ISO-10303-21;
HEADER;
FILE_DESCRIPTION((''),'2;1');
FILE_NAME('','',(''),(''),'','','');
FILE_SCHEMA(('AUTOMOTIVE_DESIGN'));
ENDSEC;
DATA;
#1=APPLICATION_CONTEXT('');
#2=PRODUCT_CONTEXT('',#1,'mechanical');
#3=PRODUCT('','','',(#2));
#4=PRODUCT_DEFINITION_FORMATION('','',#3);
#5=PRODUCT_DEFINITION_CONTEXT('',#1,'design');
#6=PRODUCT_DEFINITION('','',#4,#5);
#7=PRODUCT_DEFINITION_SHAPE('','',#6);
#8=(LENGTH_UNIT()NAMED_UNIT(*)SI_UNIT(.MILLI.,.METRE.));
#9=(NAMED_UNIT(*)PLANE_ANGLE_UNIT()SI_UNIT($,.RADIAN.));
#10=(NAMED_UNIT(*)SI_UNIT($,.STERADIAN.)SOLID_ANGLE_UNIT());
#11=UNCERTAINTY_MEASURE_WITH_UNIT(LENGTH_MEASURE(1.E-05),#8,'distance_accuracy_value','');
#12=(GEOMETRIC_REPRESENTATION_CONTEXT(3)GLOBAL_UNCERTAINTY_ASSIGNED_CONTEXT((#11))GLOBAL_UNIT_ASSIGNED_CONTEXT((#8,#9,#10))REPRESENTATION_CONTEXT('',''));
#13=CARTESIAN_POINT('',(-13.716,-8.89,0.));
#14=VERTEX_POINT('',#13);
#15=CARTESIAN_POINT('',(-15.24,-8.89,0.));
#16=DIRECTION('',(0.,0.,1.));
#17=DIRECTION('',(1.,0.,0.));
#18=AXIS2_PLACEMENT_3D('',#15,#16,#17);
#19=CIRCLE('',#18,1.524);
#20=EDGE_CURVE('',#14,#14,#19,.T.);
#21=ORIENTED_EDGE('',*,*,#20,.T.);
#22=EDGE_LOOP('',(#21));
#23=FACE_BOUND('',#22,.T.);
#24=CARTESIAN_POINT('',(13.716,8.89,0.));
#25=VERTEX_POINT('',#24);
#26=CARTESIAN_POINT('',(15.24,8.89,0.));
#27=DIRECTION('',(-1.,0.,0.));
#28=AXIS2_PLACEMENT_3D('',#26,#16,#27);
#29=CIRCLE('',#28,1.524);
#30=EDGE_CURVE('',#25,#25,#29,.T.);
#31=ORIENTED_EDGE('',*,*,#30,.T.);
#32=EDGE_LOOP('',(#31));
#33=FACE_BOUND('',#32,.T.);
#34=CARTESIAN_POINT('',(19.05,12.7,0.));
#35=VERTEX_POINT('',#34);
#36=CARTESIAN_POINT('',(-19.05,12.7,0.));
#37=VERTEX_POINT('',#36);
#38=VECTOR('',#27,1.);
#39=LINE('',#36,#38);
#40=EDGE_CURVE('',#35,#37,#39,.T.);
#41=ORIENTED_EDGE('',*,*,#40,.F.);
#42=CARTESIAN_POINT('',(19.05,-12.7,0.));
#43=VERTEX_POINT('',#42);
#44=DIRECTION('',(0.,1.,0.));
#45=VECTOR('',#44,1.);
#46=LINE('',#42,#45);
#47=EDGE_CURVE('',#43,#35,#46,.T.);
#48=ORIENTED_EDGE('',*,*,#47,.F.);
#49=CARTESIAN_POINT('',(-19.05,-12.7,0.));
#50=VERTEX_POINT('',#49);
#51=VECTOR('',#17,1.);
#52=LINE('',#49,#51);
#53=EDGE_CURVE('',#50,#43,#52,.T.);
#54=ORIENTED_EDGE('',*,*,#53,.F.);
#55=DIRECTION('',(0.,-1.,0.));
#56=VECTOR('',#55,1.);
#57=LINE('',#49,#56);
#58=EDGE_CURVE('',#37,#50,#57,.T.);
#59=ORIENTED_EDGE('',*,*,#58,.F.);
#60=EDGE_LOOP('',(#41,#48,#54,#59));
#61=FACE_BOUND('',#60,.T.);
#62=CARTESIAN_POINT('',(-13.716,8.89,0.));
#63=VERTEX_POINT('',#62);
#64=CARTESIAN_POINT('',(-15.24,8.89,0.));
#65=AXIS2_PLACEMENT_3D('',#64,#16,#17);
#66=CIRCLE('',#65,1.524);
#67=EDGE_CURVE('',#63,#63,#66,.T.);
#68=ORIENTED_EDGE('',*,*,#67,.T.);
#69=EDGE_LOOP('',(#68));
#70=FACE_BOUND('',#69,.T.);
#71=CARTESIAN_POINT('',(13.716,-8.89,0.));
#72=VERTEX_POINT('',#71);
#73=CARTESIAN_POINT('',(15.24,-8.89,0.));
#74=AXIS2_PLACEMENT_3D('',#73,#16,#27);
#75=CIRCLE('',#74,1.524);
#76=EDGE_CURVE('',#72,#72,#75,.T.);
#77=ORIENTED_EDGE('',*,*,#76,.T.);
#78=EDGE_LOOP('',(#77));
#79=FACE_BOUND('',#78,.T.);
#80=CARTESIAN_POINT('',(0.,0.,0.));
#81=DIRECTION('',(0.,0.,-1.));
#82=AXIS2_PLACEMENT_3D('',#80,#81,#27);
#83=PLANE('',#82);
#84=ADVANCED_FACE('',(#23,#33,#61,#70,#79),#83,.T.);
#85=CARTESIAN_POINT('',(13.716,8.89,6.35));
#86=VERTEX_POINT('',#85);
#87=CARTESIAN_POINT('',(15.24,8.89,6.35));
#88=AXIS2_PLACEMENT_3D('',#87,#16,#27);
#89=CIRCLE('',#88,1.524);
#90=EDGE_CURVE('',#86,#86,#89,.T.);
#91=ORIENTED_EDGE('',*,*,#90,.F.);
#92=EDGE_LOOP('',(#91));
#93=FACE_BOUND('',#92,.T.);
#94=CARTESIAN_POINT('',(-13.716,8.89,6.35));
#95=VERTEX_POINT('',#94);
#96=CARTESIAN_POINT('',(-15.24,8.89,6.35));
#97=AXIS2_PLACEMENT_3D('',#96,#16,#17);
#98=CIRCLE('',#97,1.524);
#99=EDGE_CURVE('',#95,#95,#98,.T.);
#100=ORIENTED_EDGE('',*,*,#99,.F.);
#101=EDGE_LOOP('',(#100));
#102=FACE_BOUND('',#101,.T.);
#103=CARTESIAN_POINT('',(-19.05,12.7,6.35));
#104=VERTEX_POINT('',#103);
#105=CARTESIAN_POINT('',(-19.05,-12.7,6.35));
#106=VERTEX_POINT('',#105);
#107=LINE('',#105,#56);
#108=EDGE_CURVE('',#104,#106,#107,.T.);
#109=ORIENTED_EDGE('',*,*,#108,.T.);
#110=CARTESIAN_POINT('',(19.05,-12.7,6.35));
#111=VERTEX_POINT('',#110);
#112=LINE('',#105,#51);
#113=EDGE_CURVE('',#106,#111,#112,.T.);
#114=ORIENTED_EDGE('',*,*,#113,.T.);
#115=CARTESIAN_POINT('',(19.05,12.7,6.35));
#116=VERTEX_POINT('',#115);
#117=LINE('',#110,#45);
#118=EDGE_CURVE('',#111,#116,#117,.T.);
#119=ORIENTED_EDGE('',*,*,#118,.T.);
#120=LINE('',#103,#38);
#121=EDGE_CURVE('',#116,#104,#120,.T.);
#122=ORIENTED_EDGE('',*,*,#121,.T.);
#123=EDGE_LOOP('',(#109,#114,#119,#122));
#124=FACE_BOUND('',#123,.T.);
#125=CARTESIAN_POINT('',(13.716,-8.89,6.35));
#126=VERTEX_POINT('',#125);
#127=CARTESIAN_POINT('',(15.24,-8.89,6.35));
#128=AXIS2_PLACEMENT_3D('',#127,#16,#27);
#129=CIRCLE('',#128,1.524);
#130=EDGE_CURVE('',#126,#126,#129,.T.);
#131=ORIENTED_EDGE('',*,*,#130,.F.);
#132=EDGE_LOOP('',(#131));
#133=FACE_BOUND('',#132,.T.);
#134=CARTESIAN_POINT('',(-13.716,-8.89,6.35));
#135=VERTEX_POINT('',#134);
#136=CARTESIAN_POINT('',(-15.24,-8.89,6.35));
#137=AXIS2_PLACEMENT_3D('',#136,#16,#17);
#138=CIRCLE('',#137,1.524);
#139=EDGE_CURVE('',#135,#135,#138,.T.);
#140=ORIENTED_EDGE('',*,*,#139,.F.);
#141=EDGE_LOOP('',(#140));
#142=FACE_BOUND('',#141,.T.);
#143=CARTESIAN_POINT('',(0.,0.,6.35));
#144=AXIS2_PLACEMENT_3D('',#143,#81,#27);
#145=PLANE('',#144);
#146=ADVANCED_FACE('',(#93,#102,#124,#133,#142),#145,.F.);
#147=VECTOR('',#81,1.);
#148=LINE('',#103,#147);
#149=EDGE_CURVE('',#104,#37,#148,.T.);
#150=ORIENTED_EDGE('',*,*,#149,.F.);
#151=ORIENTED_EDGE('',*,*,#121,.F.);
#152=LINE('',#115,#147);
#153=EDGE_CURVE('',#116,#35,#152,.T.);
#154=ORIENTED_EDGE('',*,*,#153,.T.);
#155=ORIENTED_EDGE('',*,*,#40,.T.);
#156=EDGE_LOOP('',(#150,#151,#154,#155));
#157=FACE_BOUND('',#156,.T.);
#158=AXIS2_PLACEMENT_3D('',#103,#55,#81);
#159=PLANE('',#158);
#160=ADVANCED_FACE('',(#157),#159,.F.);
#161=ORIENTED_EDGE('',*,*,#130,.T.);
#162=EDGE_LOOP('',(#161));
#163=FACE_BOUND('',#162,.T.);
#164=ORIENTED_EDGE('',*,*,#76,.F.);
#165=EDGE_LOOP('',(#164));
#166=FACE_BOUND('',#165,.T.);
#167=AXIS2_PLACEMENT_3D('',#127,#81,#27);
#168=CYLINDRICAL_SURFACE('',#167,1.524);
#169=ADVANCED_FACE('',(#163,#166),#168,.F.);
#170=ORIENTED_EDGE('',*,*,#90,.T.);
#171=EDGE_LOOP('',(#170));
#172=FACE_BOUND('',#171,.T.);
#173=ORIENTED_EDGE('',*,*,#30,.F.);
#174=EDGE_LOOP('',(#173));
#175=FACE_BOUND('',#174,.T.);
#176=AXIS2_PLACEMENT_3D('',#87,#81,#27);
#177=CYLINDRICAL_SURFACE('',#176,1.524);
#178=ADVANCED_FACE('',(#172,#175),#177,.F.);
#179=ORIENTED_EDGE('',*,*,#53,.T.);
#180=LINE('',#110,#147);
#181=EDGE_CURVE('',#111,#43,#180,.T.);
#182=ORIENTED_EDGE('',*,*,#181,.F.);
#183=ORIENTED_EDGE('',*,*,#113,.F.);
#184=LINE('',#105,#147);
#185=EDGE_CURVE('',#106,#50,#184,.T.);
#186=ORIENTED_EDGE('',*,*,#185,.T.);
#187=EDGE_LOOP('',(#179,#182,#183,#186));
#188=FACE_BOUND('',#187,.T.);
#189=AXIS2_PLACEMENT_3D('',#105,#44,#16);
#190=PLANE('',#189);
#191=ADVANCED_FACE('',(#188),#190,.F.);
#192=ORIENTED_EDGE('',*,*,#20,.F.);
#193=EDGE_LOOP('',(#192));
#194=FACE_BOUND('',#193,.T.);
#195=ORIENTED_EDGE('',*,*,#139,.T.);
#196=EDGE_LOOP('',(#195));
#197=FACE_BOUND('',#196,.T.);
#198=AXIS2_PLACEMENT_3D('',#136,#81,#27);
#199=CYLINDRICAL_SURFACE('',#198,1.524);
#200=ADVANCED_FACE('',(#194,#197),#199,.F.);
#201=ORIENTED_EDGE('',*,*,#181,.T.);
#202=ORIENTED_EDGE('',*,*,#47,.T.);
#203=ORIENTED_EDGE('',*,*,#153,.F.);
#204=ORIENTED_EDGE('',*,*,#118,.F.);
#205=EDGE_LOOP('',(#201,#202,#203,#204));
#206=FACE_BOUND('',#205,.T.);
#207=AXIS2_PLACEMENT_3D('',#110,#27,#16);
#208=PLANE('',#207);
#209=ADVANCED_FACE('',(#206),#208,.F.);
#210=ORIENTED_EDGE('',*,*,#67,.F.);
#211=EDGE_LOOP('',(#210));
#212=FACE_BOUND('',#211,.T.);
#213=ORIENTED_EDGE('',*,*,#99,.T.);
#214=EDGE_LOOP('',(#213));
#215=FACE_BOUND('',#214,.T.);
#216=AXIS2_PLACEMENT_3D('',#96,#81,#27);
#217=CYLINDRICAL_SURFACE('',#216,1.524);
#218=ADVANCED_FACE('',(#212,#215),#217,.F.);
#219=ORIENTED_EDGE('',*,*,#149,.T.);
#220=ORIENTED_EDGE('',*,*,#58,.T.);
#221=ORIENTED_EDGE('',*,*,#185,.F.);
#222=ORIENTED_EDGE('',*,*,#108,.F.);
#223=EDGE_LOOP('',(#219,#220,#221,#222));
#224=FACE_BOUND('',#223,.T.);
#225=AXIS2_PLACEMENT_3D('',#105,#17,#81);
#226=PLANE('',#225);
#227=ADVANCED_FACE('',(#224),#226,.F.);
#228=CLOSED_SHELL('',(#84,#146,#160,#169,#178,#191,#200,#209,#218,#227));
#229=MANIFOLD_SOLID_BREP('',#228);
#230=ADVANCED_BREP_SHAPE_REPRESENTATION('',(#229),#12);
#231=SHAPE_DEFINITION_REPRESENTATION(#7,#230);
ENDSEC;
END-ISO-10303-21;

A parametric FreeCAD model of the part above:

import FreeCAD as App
import Part
import Sketcher
Q = App.Units.Quantity

doc = App.newDocument("Part")
params = doc.addObject("Spreadsheet::Sheet", "Params")
for row, (alias, value) in enumerate([
    ("sketch1_diameter", "0.12 in"),
    ("sketch1_height", "1 in"),
    ("sketch1_width", "1.5 in"),
    ("pad1_length", "0.25 in"),
], start=1):
    params.set(f"A{row}", alias)
    params.set(f"B{row}", "=" + value)
    params.setAlias(f"B{row}", alias)

body = doc.addObject("PartDesign::Body", "Body")

# Sketch on XY plane
sketch1 = body.newObject("Sketcher::SketchObject", "Sketch")
sketch1.AttachmentSupport = (doc.getObject("XY_Plane"), [""])
sketch1.MapMode = "FlatFace"
sketch1.addGeometry([
    Part.LineSegment(App.Vector(-19.05, 12.7, 0), App.Vector(-19.05, -12.7, 0)),  # 0
    Part.LineSegment(App.Vector(-19.05, -12.7, 0), App.Vector(19.05, -12.7, 0)),  # 1
    Part.LineSegment(App.Vector(19.05, -12.7, 0), App.Vector(19.05, 12.7, 0)),  # 2
    Part.LineSegment(App.Vector(19.05, 12.7, 0), App.Vector(-19.05, 12.7, 0)),  # 3
    Part.Circle(App.Vector(-15.24, -8.89, 0), App.Vector(0, 0, 1), 1.524),  # 4
    Part.Circle(App.Vector(15.24, -8.89, 0), App.Vector(0, 0, 1), 1.524),  # 5
    Part.Circle(App.Vector(-15.24, 8.89, 0), App.Vector(0, 0, 1), 1.524),  # 6
    Part.Circle(App.Vector(15.24, 8.89, 0), App.Vector(0, 0, 1), 1.524),  # 7
], False)
sketch1.addConstraint([
    Sketcher.Constraint("Coincident", 0, 2, 1, 1),
    Sketcher.Constraint("Coincident", 1, 2, 2, 1),
    Sketcher.Constraint("Coincident", 2, 2, 3, 1),
    Sketcher.Constraint("Coincident", 3, 2, 0, 1),
    Sketcher.Constraint("Vertical", 0),
    Sketcher.Constraint("Horizontal", 1),
    Sketcher.Constraint("Vertical", 2),
    Sketcher.Constraint("Horizontal", 3),
    Sketcher.Constraint("Equal", 4, 5),
    Sketcher.Constraint("Equal", 5, 6),
    Sketcher.Constraint("Equal", 6, 7),
    Sketcher.Constraint("Symmetric", 5, 3, 6, 3, -1, 1),
    Sketcher.Constraint("Symmetric", 4, 3, 7, 3, -1, 1),
    Sketcher.Constraint("Symmetric", 0, 2, 2, 2, -1, 1),
    Sketcher.Constraint("Symmetric", 4, 3, 5, 3, -2),
    Sketcher.Constraint("Diameter", 4, Q("0.12 in")),
    Sketcher.Constraint("DistanceY", 0, 2, 0, 1, Q("1 in")),
    Sketcher.Constraint("DistanceX", 1, 1, 1, 2, Q("1.5 in")),
    Sketcher.Constraint("DistanceX", 4, 3, -1, 1, Q("0.6 in")),
    Sketcher.Constraint("DistanceY", 4, 3, 6, 3, Q("0.7 in")),
])
sketch1.setExpression("Constraints[15]", "Params.sketch1_diameter")
sketch1.setExpression("Constraints[16]", "Params.sketch1_height")
sketch1.setExpression("Constraints[17]", "Params.sketch1_width")
pad1 = body.newObject("PartDesign::Pad", "Pad")
pad1.Profile = sketch1
pad1.setExpression("Length", "Params.pad1_length")

doc.recompute()
